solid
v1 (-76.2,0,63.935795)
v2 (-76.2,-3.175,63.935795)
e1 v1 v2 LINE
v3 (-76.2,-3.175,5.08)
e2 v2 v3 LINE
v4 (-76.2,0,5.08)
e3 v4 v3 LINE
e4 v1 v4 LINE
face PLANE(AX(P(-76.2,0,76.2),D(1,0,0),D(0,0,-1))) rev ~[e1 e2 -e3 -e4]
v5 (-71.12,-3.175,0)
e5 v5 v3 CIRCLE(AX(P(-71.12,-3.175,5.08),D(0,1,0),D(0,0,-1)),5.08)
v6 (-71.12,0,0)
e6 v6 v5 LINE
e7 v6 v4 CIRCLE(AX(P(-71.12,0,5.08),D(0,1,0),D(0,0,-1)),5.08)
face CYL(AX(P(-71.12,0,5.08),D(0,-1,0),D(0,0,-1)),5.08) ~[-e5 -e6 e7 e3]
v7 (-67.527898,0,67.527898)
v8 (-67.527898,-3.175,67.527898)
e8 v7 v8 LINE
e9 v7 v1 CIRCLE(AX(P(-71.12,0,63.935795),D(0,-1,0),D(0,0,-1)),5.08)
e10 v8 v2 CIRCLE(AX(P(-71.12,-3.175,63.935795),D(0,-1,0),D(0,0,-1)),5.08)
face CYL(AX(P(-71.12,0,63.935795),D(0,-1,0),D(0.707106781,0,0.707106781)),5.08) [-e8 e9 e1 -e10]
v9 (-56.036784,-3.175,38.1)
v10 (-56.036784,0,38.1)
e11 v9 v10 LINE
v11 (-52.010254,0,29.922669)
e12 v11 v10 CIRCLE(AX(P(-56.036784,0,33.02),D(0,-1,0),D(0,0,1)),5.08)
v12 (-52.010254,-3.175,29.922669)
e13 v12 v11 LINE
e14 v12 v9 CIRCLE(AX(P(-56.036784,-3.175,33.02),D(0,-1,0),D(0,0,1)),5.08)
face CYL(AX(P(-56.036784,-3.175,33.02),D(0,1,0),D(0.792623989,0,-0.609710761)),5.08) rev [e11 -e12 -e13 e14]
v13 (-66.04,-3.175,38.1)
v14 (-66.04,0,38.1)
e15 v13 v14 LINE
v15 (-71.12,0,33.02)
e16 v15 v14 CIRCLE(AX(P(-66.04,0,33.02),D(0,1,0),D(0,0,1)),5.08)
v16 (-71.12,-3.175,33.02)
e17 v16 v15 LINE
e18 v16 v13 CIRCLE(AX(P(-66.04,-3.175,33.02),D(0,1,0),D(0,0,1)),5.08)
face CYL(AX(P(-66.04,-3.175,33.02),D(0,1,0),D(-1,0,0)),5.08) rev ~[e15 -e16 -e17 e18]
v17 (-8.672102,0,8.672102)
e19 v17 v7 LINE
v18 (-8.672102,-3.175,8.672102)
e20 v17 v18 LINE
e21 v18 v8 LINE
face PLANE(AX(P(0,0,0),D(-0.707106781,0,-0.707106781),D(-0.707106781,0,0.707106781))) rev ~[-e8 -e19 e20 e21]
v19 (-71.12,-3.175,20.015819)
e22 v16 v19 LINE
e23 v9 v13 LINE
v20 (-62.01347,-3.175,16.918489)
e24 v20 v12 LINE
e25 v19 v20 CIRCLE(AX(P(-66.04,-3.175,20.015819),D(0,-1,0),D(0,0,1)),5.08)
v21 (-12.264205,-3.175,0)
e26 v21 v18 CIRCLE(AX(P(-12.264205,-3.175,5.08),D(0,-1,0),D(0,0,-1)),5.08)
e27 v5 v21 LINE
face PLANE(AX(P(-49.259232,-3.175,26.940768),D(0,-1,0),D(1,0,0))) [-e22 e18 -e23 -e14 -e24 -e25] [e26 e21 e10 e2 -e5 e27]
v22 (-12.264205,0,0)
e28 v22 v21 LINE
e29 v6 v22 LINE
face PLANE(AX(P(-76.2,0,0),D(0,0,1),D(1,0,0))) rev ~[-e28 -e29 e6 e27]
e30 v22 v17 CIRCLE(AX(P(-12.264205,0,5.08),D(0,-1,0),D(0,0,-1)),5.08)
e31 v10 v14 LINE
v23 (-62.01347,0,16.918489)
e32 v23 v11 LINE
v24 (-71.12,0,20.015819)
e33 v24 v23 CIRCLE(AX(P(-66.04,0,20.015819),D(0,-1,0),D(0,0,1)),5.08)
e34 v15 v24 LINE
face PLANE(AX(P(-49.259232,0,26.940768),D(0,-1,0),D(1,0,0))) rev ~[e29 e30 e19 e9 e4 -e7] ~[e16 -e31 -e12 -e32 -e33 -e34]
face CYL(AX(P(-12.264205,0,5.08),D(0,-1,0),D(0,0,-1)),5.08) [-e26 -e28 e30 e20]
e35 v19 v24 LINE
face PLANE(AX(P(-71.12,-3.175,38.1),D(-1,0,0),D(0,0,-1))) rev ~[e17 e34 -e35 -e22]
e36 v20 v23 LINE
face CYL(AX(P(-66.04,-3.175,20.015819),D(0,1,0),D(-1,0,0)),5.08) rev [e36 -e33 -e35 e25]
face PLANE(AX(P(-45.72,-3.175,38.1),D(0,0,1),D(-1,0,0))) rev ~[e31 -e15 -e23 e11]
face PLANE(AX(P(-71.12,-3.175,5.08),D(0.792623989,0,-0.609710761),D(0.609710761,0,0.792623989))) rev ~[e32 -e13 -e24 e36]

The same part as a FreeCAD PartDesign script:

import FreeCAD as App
import Part
import Sketcher
Q = App.Units.Quantity


def edges_at(feature, points):
    """Names of the edges that pass closest to the given points."""
    edges = feature.Shape.Edges
    near = lambda p: min(range(len(edges)), key=lambda i: edges[i].distToShape(Part.Vertex(*p))[0])
    return sorted({f"Edge{near(p) + 1}" for p in points})

doc = App.newDocument("Part")
body = doc.addObject("PartDesign::Body", "Body")

# Sketch on XZ plane
sketch1 = body.newObject("Sketcher::SketchObject", "Sketch")
sketch1.AttachmentSupport = (doc.getObject("XZ_Plane"), [""])
sketch1.MapMode = "FlatFace"
sketch1.addGeometry(Part.LineSegment(App.Vector(-76, 0, 0), App.Vector(0, 0, 0)), False)
sketch1.addGeometry(Part.LineSegment(App.Vector(0, 0, 0), App.Vector(-76, 76, 0)), False)
sketch1.addGeometry(Part.LineSegment(App.Vector(-76, 76, 0), App.Vector(-76, 0, 0)), False)
sketch1.addConstraint(Sketcher.Constraint("Coincident", 0, 2, 1, 1))
sketch1.addConstraint(Sketcher.Constraint("Coincident", 1, 2, 2, 1))
sketch1.addConstraint(Sketcher.Constraint("Coincident", 2, 2, 0, 1))
sketch1.addConstraint(Sketcher.Constraint("Horizontal", 0))
sketch1.addConstraint(Sketcher.Constraint("Vertical", 2))
sketch1.addConstraint(Sketcher.Constraint("Coincident", 0, 2, -1, 1))
sketch1.addConstraint(Sketcher.Constraint("Equal", 0, 2))
sketch1.addConstraint(Sketcher.Constraint("DistanceX", 0, 1, 0, 2, Q("3 in")))
pad1 = body.newObject("PartDesign::Pad", "Pad")
pad1.Profile = sketch1
pad1.Length = Q("0.125 in")
doc.recompute()

fillet = body.newObject("PartDesign::Fillet", "Fillet")
fillet.Base = (pad1, edges_at(pad1, [(-76.2, -1.587, 76.2), (-76.2, -1.587, 0), (0, -1.587, 0)]))
fillet.Radius = Q("0.2 in")

# Sketch on XZ plane
sketch2 = body.newObject("Sketcher::SketchObject", "Sketch001")
sketch2.AttachmentSupport = (doc.getObject("XZ_Plane"), [""])
sketch2.MapMode = "FlatFace"
sketch2.AttachmentOffset = App.Placement(App.Vector(0, 0, 0.125 * 25.4), App.Rotation())
sketch2.addGeometry(Part.LineSegment(App.Vector(-71, 38, 0), App.Vector(-71, 5, 0)), False)
sketch2.addGeometry(Part.LineSegment(App.Vector(-71, 5, 0), App.Vector(-46, 38, 0)), False)
sketch2.addGeometry(Part.LineSegment(App.Vector(-46, 38, 0), App.Vector(-71, 38, 0)), False)
sketch2.addConstraint(Sketcher.Constraint("Coincident", 0, 2, 1, 1))
sketch2.addConstraint(Sketcher.Constraint("Coincident", 1, 2, 2, 1))
sketch2.addConstraint(Sketcher.Constraint("Coincident", 2, 2, 0, 1))
sketch2.addConstraint(Sketcher.Constraint("Vertical", 0))
sketch2.addConstraint(Sketcher.Constraint("Horizontal", 2))
sketch2.addConstraint(Sketcher.Constraint("DistanceX", 2, 2, 2, 1, Q("1 in")))
sketch2.addConstraint(Sketcher.Constraint("DistanceY", 0, 2, 0, 1, Q("1.3 in")))
sketch2.addConstraint(Sketcher.Constraint("DistanceX", 0, 2, -1, 1, Q("2.8 in")))
sketch2.addConstraint(Sketcher.Constraint("DistanceY", -1, 1, 0, 2, Q("0.2 in")))
pocket1 = body.newObject("PartDesign::Pocket", "Pocket")
pocket1.Profile = sketch2
pocket1.Length = Q("1 in")
doc.recompute()

fillet2 = body.newObject("PartDesign::Fillet", "Fillet001")
fillet2.Base = (pocket1, edges_at(pocket1, [(-71.12, -1.587, 5.08), (-45.72, -1.587, 38.1), (-71.12, -1.587, 38.1)]))
fillet2.Radius = Q("0.2 in")

doc.recompute()
